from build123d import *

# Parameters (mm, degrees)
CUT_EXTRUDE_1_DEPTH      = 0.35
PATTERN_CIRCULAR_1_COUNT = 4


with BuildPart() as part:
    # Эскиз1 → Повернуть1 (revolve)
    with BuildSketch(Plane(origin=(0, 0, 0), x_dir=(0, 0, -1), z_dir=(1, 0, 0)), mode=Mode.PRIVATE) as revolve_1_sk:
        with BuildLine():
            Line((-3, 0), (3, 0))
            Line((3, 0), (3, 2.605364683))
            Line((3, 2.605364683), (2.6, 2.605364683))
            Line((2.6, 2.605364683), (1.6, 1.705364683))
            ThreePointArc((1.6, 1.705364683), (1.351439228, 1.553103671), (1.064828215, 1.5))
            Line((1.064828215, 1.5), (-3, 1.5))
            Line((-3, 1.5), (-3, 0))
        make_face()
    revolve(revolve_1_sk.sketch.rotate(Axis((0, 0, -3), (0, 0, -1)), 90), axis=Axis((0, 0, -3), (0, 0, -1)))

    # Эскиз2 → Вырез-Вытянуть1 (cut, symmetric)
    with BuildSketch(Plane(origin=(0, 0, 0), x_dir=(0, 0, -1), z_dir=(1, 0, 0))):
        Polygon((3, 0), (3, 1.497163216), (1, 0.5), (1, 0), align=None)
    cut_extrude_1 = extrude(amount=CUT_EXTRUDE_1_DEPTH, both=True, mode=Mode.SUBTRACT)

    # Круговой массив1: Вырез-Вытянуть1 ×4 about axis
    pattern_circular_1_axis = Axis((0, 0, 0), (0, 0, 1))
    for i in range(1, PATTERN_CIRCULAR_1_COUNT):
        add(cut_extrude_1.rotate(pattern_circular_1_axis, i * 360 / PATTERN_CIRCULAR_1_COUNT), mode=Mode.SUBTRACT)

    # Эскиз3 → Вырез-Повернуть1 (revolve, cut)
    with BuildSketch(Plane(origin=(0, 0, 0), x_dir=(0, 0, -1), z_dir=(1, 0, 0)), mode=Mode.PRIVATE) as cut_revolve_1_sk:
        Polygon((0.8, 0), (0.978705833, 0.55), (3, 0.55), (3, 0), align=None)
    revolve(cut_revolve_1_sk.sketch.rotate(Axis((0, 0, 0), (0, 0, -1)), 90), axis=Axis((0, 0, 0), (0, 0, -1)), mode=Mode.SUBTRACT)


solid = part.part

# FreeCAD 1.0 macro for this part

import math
import FreeCAD as App
import Part
import Sketcher

V = App.Vector
Q = App.Units.Quantity

doc = App.newDocument("Part")
params = doc.addObject("Spreadsheet::Sheet", "Params")
for row, (alias, value) in enumerate([
    ("sketch1_radius", "0.8 mm"),
    ("sketch1_height", "6 mm"),
    ("sketch1_width", "1.5 mm"),
    ("sketch1_height2", "0.4 mm"),
    ("revolution_angle", "360 deg"),
    ("sketch2_height", "2 mm"),
    ("sketch2_width", "0.5 mm"),
    ("pocket1_length", "0.7 mm"),
    ("sketch3_height", "2.2 mm"),
    ("sketch3_width", "0.55 mm"),
    ("groove_angle", "360 deg"),
], start=1):
    params.set(f"A{row}", alias)
    params.set(f"B{row}", "=" + value)
    params.setAlias(f"B{row}", alias)

body = doc.addObject("PartDesign::Body", "Body")

sketch1 = body.newObject("Sketcher::SketchObject", "Sketch")
sketch1.AttachmentSupport = (doc.getObject("YZ_Plane"), [""])
sketch1.MapMode = "FlatFace"
sketch1.addGeometry([
    Part.LineSegment(V(0, 3, 0), V(0, -3, 0)),
    Part.LineSegment(V(0, -3, 0), V(2.61, -3, 0)),
    Part.LineSegment(V(2.61, -3, 0), V(2.61, -2.6, 0)),
    Part.LineSegment(V(2.61, -2.6, 0), V(1.71, -1.6, 0)),
    Part.ArcOfCircle(Part.Circle(V(2.3, -1.06, 0), V(0, 0, 1), 0.8), math.radians(-180), math.radians(-138)),
    Part.LineSegment(V(1.5, -1.06, 0), V(1.5, 3, 0)),
    Part.LineSegment(V(1.5, 3, 0), V(0, 3, 0)),
], False)
sketch1.addConstraint([
    Sketcher.Constraint("Coincident", 0, 2, 1, 1),
    Sketcher.Constraint("Coincident", 1, 2, 2, 1),
    Sketcher.Constraint("Coincident", 2, 2, 3, 1),
    Sketcher.Constraint("Tangent", 3, 2, 4, 2),
    Sketcher.Constraint("Tangent", 4, 1, 5, 1),
    Sketcher.Constraint("Coincident", 5, 2, 6, 1),
    Sketcher.Constraint("Coincident", 6, 2, 0, 1),
    Sketcher.Constraint("Vertical", 0),
    Sketcher.Constraint("Horizontal", 1),
    Sketcher.Constraint("Vertical", 2),
    Sketcher.Constraint("Vertical", 5),
    Sketcher.Constraint("Horizontal", 6),
    Sketcher.Constraint("Symmetric", 0, 2, 6, 2, -1, 1),
    Sketcher.Constraint("Radius", 4, Q("0.8 mm")),
    Sketcher.Constraint("DistanceY", 0, 2, 0, 1, Q("6 mm")),
    Sketcher.Constraint("DistanceX", 6, 2, 6, 1, Q("1.5 mm")),
    Sketcher.Constraint("DistanceY", 2, 1, 2, 2, Q("0.4 mm")),
    Sketcher.Constraint("DistanceY", 2, 2, 3, 2, Q("1 mm")),
    Sketcher.Constraint("DistanceX", 3, 2, 2, 2, Q("0.9 mm")),
])
sketch1.setExpression("Constraints[13]", "Params.sketch1_radius")
sketch1.setExpression("Constraints[14]", "Params.sketch1_height")
sketch1.setExpression("Constraints[15]", "Params.sketch1_width")
sketch1.setExpression("Constraints[16]", "Params.sketch1_height2")
revolution = body.newObject("PartDesign::Revolution", "Revolution")
revolution.Profile = sketch1
revolution.ReferenceAxis = (sketch1, ["V_Axis"])
revolution.setExpression("Angle", "Params.revolution_angle")

sketch2 = body.newObject("Sketcher::SketchObject", "Sketch001")
sketch2.AttachmentSupport = (doc.getObject("YZ_Plane"), [""])
sketch2.MapMode = "FlatFace"
sketch2.addGeometry([
    Part.LineSegment(V(0, -3, 0), V(1.5, -3, 0)),
    Part.LineSegment(V(1.5, -3, 0), V(0.5, -1, 0)),
    Part.LineSegment(V(0.5, -1, 0), V(0, -1, 0)),
    Part.LineSegment(V(0, -1, 0), V(0, -3, 0)),
], False)
sketch2.addConstraint([
    Sketcher.Constraint("Coincident", 0, 2, 1, 1),
    Sketcher.Constraint("Coincident", 1, 2, 2, 1),
    Sketcher.Constraint("Coincident", 2, 2, 3, 1),
    Sketcher.Constraint("Coincident", 3, 2, 0, 1),
    Sketcher.Constraint("Horizontal", 0),
    Sketcher.Constraint("Horizontal", 2),
    Sketcher.Constraint("Vertical", 3),
    Sketcher.Constraint("PointOnObject", 2, 2, -2),
    Sketcher.Constraint("DistanceY", 3, 2, 3, 1, Q("2 mm")),
    Sketcher.Constraint("DistanceX", 2, 2, 2, 1, Q("0.5 mm")),
    Sketcher.Constraint("DistanceY", 0, 2, -1, 1, Q("3 mm")),
    Sketcher.Constraint("Angle", 1, Q("116.5 deg")),
])
sketch2.setExpression("Constraints[8]", "Params.sketch2_height")
sketch2.setExpression("Constraints[9]", "Params.sketch2_width")
pocket1 = body.newObject("PartDesign::Pocket", "Pocket")
pocket1.Profile = sketch2
pocket1.setExpression("Length", "Params.pocket1_length")
pocket1.Midplane = True
doc.recompute()

polarpattern = body.newObject("PartDesign::PolarPattern", "PolarPattern")
polarpattern.Originals = [pocket1]
polarpattern.Axis = (doc.getObject("Z_Axis"), [""])
polarpattern.Angle = 360
polarpattern.Occurrences = 4
body.Tip = polarpattern

sketch3 = body.newObject("Sketcher::SketchObject", "Sketch002")
sketch3.AttachmentSupport = (doc.getObject("YZ_Plane"), [""])
sketch3.MapMode = "FlatFace"
sketch3.addGeometry([
    Part.LineSegment(V(0.6, -1, 0), V(0, -0.8, 0)),
    Part.LineSegment(V(0, -0.8, 0), V(0, -3, 0)),
    Part.LineSegment(V(0, -3, 0), V(0.6, -3, 0)),
    Part.LineSegment(V(0.6, -3, 0), V(0.6, -1, 0)),
], False)
sketch3.addConstraint([
    Sketcher.Constraint("Coincident", 0, 2, 1, 1),
    Sketcher.Constraint("Coincident", 1, 2, 2, 1),
    Sketcher.Constraint("Coincident", 2, 2, 3, 1),
    Sketcher.Constraint("Coincident", 3, 2, 0, 1),
    Sketcher.Constraint("Vertical", 1),
    Sketcher.Constraint("Horizontal", 2),
    Sketcher.Constraint("Vertical", 3),
    Sketcher.Constraint("PointOnObject", 0, 2, -2),
    Sketcher.Constraint("Angle", 0, Q("162 deg")),
    Sketcher.Constraint("DistanceY", 1, 2, 1, 1, Q("2.2 mm")),
    Sketcher.Constraint("DistanceY", 1, 2, -1, 1, Q("3 mm")),
    Sketcher.Constraint("DistanceX", 2, 1, 2, 2, Q("0.55 mm")),
])
sketch3.setExpression("Constraints[9]", "Params.sketch3_height")
sketch3.setExpression("Constraints[11]", "Params.sketch3_width")
groove = body.newObject("PartDesign::Groove", "Groove")
groove.Profile = sketch3
groove.ReferenceAxis = (sketch3, ["V_Axis"])
groove.setExpression("Angle", "Params.groove_angle")

doc.recompute()
